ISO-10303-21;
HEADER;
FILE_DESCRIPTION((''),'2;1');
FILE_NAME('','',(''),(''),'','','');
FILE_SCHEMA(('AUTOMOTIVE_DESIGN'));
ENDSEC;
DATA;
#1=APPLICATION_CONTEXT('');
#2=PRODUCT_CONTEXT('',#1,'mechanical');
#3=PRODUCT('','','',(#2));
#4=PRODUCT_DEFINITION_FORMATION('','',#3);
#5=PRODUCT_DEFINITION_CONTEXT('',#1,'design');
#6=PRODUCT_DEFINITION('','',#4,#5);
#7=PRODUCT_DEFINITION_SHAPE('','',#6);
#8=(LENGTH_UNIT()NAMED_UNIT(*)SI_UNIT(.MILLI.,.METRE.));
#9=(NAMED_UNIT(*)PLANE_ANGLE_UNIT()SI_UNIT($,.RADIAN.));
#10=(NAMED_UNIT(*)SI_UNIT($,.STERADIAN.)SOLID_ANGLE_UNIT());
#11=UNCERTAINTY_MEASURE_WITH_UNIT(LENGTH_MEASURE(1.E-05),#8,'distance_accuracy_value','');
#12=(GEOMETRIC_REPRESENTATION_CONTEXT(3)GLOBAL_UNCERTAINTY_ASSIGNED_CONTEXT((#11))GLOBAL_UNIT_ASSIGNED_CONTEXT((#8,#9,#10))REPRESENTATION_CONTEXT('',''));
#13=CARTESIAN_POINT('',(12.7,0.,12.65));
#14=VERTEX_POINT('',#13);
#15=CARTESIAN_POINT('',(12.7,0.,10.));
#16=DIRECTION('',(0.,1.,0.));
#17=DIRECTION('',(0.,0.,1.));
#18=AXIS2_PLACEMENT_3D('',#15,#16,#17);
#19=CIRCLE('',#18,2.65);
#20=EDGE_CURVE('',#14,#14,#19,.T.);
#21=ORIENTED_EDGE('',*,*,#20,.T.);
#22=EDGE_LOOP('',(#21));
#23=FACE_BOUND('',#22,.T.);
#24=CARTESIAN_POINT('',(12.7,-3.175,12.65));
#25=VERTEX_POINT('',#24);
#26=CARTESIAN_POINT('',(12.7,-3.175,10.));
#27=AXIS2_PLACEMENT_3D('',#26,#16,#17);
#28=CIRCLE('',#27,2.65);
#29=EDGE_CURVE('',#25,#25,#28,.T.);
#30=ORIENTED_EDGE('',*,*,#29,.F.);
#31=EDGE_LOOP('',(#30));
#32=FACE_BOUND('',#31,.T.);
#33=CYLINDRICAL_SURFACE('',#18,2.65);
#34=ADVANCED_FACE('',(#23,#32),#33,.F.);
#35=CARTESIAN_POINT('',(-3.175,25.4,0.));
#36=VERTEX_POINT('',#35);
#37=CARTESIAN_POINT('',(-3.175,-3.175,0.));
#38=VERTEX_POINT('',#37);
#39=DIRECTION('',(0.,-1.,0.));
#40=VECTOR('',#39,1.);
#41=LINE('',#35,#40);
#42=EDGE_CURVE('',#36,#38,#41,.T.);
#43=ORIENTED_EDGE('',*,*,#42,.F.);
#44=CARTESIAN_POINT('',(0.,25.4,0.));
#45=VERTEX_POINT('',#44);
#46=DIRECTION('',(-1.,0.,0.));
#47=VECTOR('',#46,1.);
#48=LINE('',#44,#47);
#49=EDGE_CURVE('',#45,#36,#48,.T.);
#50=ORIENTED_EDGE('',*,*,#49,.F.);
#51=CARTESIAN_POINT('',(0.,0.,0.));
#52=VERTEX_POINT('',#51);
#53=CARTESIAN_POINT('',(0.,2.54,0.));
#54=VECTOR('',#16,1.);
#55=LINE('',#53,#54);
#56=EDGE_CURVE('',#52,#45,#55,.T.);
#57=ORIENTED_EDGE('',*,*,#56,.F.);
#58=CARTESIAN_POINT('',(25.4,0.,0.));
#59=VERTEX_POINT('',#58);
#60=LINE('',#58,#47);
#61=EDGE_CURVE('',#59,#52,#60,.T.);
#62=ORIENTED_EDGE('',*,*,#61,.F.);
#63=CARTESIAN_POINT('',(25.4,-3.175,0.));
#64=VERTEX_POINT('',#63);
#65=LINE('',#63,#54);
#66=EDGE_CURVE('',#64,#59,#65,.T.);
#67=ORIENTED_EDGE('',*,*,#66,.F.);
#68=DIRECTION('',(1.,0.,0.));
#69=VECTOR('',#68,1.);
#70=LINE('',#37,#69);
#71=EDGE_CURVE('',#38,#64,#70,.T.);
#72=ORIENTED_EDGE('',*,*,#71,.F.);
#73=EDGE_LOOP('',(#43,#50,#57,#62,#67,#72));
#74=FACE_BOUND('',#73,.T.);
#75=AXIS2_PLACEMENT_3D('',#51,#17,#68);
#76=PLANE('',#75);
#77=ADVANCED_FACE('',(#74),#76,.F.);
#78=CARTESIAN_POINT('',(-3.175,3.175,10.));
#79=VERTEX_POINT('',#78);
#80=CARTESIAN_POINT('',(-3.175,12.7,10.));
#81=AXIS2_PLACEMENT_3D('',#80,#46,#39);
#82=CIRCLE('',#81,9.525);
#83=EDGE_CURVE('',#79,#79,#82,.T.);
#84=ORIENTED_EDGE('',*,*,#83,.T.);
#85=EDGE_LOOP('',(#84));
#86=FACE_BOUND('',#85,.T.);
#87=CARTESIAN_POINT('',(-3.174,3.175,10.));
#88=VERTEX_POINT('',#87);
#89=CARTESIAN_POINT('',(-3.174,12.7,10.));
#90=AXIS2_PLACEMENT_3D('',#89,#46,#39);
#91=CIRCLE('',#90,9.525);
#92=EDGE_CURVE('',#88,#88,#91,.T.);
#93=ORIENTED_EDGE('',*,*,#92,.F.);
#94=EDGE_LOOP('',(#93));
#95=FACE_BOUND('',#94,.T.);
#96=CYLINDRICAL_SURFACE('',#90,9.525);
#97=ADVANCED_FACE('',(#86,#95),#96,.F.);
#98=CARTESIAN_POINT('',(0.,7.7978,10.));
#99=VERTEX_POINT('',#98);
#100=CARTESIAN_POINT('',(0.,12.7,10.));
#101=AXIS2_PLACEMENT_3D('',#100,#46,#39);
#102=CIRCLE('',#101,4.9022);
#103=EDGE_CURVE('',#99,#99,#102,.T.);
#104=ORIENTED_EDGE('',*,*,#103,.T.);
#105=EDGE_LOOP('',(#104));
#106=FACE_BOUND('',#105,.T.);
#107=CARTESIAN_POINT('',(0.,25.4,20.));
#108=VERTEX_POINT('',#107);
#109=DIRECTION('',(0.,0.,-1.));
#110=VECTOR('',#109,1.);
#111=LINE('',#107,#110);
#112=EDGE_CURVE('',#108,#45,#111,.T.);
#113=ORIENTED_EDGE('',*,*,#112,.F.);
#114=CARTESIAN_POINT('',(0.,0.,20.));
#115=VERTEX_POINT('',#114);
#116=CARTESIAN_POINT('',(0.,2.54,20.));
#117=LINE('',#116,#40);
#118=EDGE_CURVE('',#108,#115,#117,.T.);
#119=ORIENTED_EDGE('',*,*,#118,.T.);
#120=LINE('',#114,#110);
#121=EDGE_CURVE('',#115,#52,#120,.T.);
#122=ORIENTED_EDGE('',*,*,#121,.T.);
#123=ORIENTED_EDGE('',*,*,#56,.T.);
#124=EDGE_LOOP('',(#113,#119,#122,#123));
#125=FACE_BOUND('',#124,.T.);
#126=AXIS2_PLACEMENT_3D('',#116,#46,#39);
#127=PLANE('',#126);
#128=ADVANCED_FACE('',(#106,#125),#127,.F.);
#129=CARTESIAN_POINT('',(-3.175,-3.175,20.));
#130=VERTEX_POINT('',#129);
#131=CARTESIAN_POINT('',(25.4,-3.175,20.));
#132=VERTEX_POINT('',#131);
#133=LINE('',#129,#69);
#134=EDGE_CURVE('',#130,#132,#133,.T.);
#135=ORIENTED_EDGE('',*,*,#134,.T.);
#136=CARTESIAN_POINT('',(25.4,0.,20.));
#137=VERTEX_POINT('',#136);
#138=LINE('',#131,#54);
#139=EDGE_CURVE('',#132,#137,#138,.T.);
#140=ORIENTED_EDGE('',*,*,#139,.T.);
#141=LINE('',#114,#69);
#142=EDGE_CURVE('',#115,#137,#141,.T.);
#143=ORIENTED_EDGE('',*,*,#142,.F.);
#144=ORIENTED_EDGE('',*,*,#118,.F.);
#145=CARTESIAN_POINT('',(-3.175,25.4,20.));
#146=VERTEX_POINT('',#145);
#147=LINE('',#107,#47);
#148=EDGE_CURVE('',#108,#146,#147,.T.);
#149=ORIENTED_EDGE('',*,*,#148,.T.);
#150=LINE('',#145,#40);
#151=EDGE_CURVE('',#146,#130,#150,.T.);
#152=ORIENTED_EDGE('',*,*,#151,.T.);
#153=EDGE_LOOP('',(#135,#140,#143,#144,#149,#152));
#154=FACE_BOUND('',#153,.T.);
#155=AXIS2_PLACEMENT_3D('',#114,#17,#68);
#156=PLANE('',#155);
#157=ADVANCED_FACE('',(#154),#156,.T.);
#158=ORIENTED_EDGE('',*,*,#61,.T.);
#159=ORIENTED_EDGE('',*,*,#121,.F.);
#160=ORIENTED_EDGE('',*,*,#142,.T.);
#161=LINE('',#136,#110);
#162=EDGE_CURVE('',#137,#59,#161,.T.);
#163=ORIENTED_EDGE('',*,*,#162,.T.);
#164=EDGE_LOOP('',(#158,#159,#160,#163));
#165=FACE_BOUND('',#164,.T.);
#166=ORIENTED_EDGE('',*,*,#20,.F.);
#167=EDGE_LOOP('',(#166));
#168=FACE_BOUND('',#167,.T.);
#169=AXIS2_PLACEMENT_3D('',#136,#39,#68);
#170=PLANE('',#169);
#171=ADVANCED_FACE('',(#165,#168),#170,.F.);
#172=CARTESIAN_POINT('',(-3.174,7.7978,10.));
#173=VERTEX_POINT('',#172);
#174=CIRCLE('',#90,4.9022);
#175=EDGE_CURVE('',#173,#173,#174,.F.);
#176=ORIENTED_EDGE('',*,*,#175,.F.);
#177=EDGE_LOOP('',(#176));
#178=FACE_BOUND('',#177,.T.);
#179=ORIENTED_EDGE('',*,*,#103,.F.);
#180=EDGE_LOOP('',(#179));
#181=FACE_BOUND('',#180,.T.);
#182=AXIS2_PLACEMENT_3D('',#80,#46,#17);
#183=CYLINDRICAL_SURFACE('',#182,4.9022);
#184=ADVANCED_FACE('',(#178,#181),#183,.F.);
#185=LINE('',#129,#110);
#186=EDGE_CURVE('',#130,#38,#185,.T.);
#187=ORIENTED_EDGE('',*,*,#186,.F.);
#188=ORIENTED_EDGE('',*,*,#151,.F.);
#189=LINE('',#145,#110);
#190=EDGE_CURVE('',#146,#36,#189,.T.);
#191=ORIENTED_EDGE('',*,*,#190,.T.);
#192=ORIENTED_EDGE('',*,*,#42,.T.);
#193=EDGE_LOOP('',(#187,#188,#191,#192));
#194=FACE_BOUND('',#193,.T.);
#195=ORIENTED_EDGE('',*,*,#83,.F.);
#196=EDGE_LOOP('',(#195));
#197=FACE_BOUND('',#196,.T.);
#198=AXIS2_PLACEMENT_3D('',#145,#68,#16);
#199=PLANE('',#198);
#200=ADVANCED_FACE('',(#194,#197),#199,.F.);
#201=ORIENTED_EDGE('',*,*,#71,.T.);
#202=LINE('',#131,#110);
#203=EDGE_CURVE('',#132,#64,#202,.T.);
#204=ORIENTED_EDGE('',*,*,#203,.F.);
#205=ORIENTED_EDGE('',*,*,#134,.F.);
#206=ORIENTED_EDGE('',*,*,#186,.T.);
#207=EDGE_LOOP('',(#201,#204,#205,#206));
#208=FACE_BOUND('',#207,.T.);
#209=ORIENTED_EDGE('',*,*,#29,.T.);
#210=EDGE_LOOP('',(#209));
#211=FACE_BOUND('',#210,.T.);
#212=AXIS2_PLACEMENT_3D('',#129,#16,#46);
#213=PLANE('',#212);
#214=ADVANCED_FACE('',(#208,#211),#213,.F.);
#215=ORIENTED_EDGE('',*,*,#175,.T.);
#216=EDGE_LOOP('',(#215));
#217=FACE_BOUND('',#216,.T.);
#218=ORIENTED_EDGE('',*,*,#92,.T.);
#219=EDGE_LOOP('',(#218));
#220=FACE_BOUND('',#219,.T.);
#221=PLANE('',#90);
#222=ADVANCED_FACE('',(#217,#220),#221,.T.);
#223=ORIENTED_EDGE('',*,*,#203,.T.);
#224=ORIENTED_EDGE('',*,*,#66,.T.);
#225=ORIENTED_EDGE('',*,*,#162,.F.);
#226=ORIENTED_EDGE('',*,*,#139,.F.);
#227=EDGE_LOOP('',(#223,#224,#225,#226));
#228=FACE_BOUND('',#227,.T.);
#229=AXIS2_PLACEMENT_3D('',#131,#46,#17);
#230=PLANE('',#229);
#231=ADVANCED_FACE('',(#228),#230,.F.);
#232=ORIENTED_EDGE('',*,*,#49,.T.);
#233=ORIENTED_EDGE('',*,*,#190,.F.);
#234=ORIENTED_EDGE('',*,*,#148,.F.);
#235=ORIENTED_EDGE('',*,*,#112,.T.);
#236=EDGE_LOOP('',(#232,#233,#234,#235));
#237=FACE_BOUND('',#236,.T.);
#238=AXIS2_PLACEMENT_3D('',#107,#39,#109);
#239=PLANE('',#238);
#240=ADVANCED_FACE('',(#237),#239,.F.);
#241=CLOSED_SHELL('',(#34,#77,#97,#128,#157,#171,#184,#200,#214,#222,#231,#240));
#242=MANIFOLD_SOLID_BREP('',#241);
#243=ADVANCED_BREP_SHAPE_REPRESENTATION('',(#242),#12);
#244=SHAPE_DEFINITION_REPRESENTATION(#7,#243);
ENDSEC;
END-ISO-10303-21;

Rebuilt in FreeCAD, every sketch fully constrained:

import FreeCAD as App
import Part
import Sketcher
Q = App.Units.Quantity

doc = App.newDocument("Part")
body = doc.addObject("PartDesign::Body", "Body")

sketch1 = doc.addObject("Sketcher::SketchObject", "Sketch")
body.addObject(sketch1)
sketch1.AttachmentSupport = (doc.XY_Plane, [""])
sketch1.MapMode = "FlatFace"
sketch1.addGeometry([
    Part.LineSegment(App.Vector(0, 25.4, 0), App.Vector(-3.175, 25.4, 0)),
    Part.LineSegment(App.Vector(-3.175, 25.4, 0), App.Vector(-3.175, -3.175, 0)),
    Part.LineSegment(App.Vector(-3.175, -3.175, 0), App.Vector(25.4, -3.175, 0)),
    Part.LineSegment(App.Vector(25.4, -3.175, 0), App.Vector(25.4, 0, 0)),
    Part.LineSegment(App.Vector(25.4, 0, 0), App.Vector(0, 0, 0)),
    Part.LineSegment(App.Vector(0, 0, 0), App.Vector(0, 25.4, 0)),
], False)
sketch1.addConstraint([
    Sketcher.Constraint("Coincident", 0, 2, 1, 1),
    Sketcher.Constraint("Coincident", 1, 2, 2, 1),
    Sketcher.Constraint("Coincident", 2, 2, 3, 1),
    Sketcher.Constraint("Coincident", 3, 2, 4, 1),
    Sketcher.Constraint("Coincident", 4, 2, 5, 1),
    Sketcher.Constraint("Coincident", 5, 2, 0, 1),
    Sketcher.Constraint("Horizontal", 0),
    Sketcher.Constraint("Vertical", 1),
    Sketcher.Constraint("Horizontal", 2),
    Sketcher.Constraint("Vertical", 3),
    Sketcher.Constraint("Horizontal", 4),
    Sketcher.Constraint("Vertical", 5),
    Sketcher.Constraint("Coincident", 4, 2, -1, 1),
    Sketcher.Constraint("Equal", 2, 1),
    Sketcher.Constraint("Equal", 0, 3),
    Sketcher.Constraint("DistanceX", 4, 2, 4, 1, Q("1 in")),
    Sketcher.Constraint("DistanceX", 0, 2, 0, 1, Q("0.125 in")),
])
pad1 = doc.addObject("PartDesign::Pad", "Pad")
body.addObject(pad1)
pad1.Profile = sketch1
pad1.Length = 20

sketch2 = doc.addObject("Sketcher::SketchObject", "Sketch001")
body.addObject(sketch2)
sketch2.AttachmentSupport = (doc.YZ_Plane, [""])
sketch2.MapMode = "FlatFace"
sketch2.AttachmentOffset = App.Placement(App.Vector(0, 0, -0.125 * 25.4), App.Rotation())
sketch2.addGeometry(Part.Circle(App.Vector(12.7, 10, 0), App.Vector(0, 0, 1), 4.9022), False)
sketch2.addConstraint([
    Sketcher.Constraint("Diameter", 0, Q("0.386 in")),
    Sketcher.Constraint("DistanceX", -1, 1, 0, 3, Q("0.5 in")),
    Sketcher.Constraint("DistanceY", -1, 1, 0, 3, 10.0),
])
doc.recompute()
hole = doc.addObject("PartDesign::Hole", "Hole")
body.addObject(hole)
hole.Profile = sketch2
hole.ThreadType = "None"
hole.Diameter = Q("0.386 in")
hole.DepthType = "ThroughAll"
hole.Reversed = True

sketch3 = doc.addObject("Sketcher::SketchObject", "Sketch002")
body.addObject(sketch3)
sketch3.AttachmentSupport = (doc.XZ_Plane, [""])
sketch3.MapMode = "FlatFace"
sketch3.addGeometry(Part.Circle(App.Vector(12.7, 10, 0), App.Vector(0, 0, 1), 2.65), False)
sketch3.addConstraint([
    Sketcher.Constraint("DistanceX", -1, 1, 0, 3, Q("0.5 in")),
    Sketcher.Constraint("Diameter", 0, 5.3),
    Sketcher.Constraint("DistanceY", -1, 1, 0, 3, 10.0),
])
doc.recompute()
hole2 = doc.addObject("PartDesign::Hole", "Hole001")
body.addObject(hole2)
hole2.Profile = sketch3
hole2.ThreadType = "None"
hole2.Diameter = 5.3
hole2.DepthType = "ThroughAll"
hole2.Reversed = True

sketch4 = doc.addObject("Sketcher::SketchObject", "Sketch003")
body.addObject(sketch4)
sketch4.AttachmentSupport = (doc.YZ_Plane, [""])
sketch4.MapMode = "FlatFace"
sketch4.AttachmentOffset = App.Placement(App.Vector(0, 0, -0.125 * 25.4), App.Rotation())
sketch4.addGeometry(Part.Circle(App.Vector(12.7, 10, 0), App.Vector(0, 0, 1), 9.525), False)
sketch4.addConstraint([
    Sketcher.Constraint("Diameter", 0, Q("0.75 in")),
    Sketcher.Constraint("DistanceX", -1, 1, 0, 3, Q("0.5 in")),
    Sketcher.Constraint("DistanceY", -1, 1, 0, 3, 10.0),
])
pocket1 = doc.addObject("PartDesign::Pocket", "Pocket")
body.addObject(pocket1)
pocket1.Profile = sketch4
pocket1.Length = 0.001
pocket1.Reversed = True

doc.recompute()
